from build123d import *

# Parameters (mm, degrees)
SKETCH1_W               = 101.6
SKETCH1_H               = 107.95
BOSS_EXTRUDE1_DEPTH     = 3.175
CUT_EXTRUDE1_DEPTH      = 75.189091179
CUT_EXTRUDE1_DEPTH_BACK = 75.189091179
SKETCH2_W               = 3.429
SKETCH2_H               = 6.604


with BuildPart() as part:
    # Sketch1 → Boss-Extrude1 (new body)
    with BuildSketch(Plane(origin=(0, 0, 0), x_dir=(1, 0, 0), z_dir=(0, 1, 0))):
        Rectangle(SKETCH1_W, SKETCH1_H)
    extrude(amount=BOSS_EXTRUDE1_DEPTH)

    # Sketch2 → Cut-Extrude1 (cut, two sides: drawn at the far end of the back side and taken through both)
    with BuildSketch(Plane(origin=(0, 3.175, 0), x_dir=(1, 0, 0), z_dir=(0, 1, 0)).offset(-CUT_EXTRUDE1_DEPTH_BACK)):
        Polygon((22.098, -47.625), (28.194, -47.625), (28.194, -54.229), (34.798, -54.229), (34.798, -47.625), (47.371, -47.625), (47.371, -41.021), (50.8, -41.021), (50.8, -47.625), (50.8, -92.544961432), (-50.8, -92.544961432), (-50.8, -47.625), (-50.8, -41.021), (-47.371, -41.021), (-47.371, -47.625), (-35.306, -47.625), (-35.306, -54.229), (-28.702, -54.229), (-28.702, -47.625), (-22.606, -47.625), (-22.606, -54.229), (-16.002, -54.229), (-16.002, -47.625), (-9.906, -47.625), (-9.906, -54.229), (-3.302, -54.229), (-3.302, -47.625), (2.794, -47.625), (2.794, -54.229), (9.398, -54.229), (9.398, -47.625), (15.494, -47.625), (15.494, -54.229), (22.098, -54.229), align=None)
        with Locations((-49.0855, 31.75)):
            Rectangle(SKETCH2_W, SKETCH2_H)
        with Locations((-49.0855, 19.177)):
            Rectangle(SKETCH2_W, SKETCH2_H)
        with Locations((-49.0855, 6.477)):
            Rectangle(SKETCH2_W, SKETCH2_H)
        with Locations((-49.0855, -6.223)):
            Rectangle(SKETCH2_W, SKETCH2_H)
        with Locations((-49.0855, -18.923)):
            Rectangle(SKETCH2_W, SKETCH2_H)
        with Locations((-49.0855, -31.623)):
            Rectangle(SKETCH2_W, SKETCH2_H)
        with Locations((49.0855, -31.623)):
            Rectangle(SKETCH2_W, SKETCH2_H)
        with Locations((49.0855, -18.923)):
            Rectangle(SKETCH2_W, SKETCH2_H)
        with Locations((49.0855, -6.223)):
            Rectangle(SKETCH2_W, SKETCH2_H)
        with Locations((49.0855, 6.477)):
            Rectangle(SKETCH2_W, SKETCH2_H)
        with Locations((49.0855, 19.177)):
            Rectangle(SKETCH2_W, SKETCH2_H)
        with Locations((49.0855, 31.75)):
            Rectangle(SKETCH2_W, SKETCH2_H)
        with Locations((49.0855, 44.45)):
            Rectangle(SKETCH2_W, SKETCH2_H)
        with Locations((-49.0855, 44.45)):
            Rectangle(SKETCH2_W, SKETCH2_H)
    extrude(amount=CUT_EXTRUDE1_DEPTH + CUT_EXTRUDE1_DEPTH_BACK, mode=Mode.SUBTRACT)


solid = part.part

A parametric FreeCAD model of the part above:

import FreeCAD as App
import Part
import Sketcher
from FreeCAD import Vector
Q = App.Units.Quantity

doc = App.newDocument("Part")
params = doc.addObject("Spreadsheet::Sheet", "Params")
for row, (alias, value) in enumerate([
    ("sketch1_width", "4 in"),
    ("sketch1_height", "4.25 in"),
    ("pad1_length", "0.125 in"),
    ("sketch2_width", "4 in"),
    ("sketch2_width2", "0.24 in"),
    ("sketch2_width3", "0.26 in"),
    ("sketch2_width4", "0.475 in"),
    ("sketch2_width5", "0.135 in"),
], start=1):
    params.set(f"A{row}", alias)
    params.set(f"B{row}", "=" + value)
    params.setAlias(f"B{row}", alias)

body = doc.addObject("PartDesign::Body", "Body")

sketch1 = doc.addObject("Sketcher::SketchObject", "Sketch")
body.addObject(sketch1)
sketch1.AttachmentSupport = (doc.XZ_Plane, [""])
sketch1.MapMode = "FlatFace"
sketch1.addGeometry(Part.LineSegment(Vector(-50.8, -53.975, 0), Vector(-50.8, 53.975, 0)), False)
sketch1.addGeometry(Part.LineSegment(Vector(-50.8, 53.975, 0), Vector(50.8, 53.975, 0)), False)
sketch1.addGeometry(Part.LineSegment(Vector(50.8, 53.975, 0), Vector(50.8, -53.975, 0)), False)
sketch1.addGeometry(Part.LineSegment(Vector(50.8, -53.975, 0), Vector(-50.8, -53.975, 0)), False)
sketch1.addConstraint(Sketcher.Constraint("Coincident", 0, 2, 1, 1))
sketch1.addConstraint(Sketcher.Constraint("Coincident", 1, 2, 2, 1))
sketch1.addConstraint(Sketcher.Constraint("Coincident", 2, 2, 3, 1))
sketch1.addConstraint(Sketcher.Constraint("Coincident", 3, 2, 0, 1))
sketch1.addConstraint(Sketcher.Constraint("Vertical", 0))
sketch1.addConstraint(Sketcher.Constraint("Horizontal", 1))
sketch1.addConstraint(Sketcher.Constraint("Vertical", 2))
sketch1.addConstraint(Sketcher.Constraint("Horizontal", 3))
sketch1.addConstraint(Sketcher.Constraint("Symmetric", 0, 2, 2, 2, -1, 1))
sketch1.addConstraint(Sketcher.Constraint("DistanceX", 1, 1, 1, 2, Q("4 in")))
sketch1.addConstraint(Sketcher.Constraint("DistanceY", 0, 1, 0, 2, Q("4.25 in")))
sketch1.setExpression("Constraints[9]", "Params.sketch1_width")
sketch1.setExpression("Constraints[10]", "Params.sketch1_height")
pad1 = doc.addObject("PartDesign::Pad", "Pad")
body.addObject(pad1)
pad1.Profile = sketch1
pad1.setExpression("Length", "Params.pad1_length")
pad1.Reversed = True

sketch2 = doc.addObject("Sketcher::SketchObject", "Sketch001")
body.addObject(sketch2)
sketch2.AttachmentSupport = (doc.XZ_Plane, [""])
sketch2.MapMode = "FlatFace"
sketch2.AttachmentOffset = App.Placement(Vector(0, 0, -0.125 * 25.4), App.Rotation())
sketch2.addGeometry(Part.LineSegment(Vector(28.194, 47.625, 0), Vector(22.098, 47.625, 0)), False)
sketch2.addGeometry(Part.LineSegment(Vector(22.098, 47.625, 0), Vector(22.098, 54.229, 0)), False)
sketch2.addGeometry(Part.LineSegment(Vector(22.098, 54.229, 0), Vector(15.494, 54.229, 0)), False)
sketch2.addGeometry(Part.LineSegment(Vector(15.494, 54.229, 0), Vector(15.494, 47.625, 0)), False)
sketch2.addGeometry(Part.LineSegment(Vector(15.494, 47.625, 0), Vector(9.398, 47.625, 0)), False)
sketch2.addGeometry(Part.LineSegment(Vector(9.398, 47.625, 0), Vector(9.398, 54.229, 0)), False)
sketch2.addGeometry(Part.LineSegment(Vector(9.398, 54.229, 0), Vector(2.794, 54.229, 0)), False)
sketch2.addGeometry(Part.LineSegment(Vector(2.794, 54.229, 0), Vector(2.794, 47.625, 0)), False)
sketch2.addGeometry(Part.LineSegment(Vector(2.794, 47.625, 0), Vector(-3.302, 47.625, 0)), False)
sketch2.addGeometry(Part.LineSegment(Vector(-3.302, 47.625, 0), Vector(-3.302, 54.229, 0)), False)
sketch2.addGeometry(Part.LineSegment(Vector(-3.302, 54.229, 0), Vector(-9.906, 54.229, 0)), False)
sketch2.addGeometry(Part.LineSegment(Vector(-9.906, 54.229, 0), Vector(-9.906, 47.625, 0)), False)
sketch2.addGeometry(Part.LineSegment(Vector(-9.906, 47.625, 0), Vector(-16.002, 47.625, 0)), False)
sketch2.addGeometry(Part.LineSegment(Vector(-16.002, 47.625, 0), Vector(-16.002, 54.229, 0)), False)
sketch2.addGeometry(Part.LineSegment(Vector(-16.002, 54.229, 0), Vector(-22.606, 54.229, 0)), False)
sketch2.addGeometry(Part.LineSegment(Vector(-22.606, 54.229, 0), Vector(-22.606, 47.625, 0)), False)
sketch2.addGeometry(Part.LineSegment(Vector(-22.606, 47.625, 0), Vector(-28.702, 47.625, 0)), False)
sketch2.addGeometry(Part.LineSegment(Vector(-28.702, 47.625, 0), Vector(-28.702, 54.229, 0)), False)
sketch2.addGeometry(Part.LineSegment(Vector(-28.702, 54.229, 0), Vector(-35.306, 54.229, 0)), False)
sketch2.addGeometry(Part.LineSegment(Vector(-35.306, 54.229, 0), Vector(-35.306, 47.625, 0)), False)
sketch2.addGeometry(Part.LineSegment(Vector(-35.306, 47.625, 0), Vector(-47.371, 47.625, 0)), False)
sketch2.addGeometry(Part.LineSegment(Vector(-47.371, 47.625, 0), Vector(-47.371, 41.021, 0)), False)
sketch2.addGeometry(Part.LineSegment(Vector(-47.371, 41.021, 0), Vector(-50.8, 41.021, 0)), False)
sketch2.addGeometry(Part.LineSegment(Vector(-50.8, 41.021, 0), Vector(-50.8, 92.544961, 0)), False)
sketch2.addGeometry(Part.LineSegment(Vector(-50.8, 92.544961, 0), Vector(50.8, 92.544961, 0)), False)
sketch2.addGeometry(Part.LineSegment(Vector(50.8, 92.544961, 0), Vector(50.8, 41.021, 0)), False)
sketch2.addGeometry(Part.LineSegment(Vector(50.8, 41.021, 0), Vector(47.371, 41.021, 0)), False)
sketch2.addGeometry(Part.LineSegment(Vector(47.371, 41.021, 0), Vector(47.371, 47.625, 0)), False)
sketch2.addGeometry(Part.LineSegment(Vector(47.371, 47.625, 0), Vector(34.798, 47.625, 0)), False)
sketch2.addGeometry(Part.LineSegment(Vector(34.798, 47.625, 0), Vector(34.798, 54.229, 0)), False)
sketch2.addGeometry(Part.LineSegment(Vector(34.798, 54.229, 0), Vector(28.194, 54.229, 0)), False)
sketch2.addGeometry(Part.LineSegment(Vector(28.194, 54.229, 0), Vector(28.194, 47.625, 0)), False)
sketch2.addGeometry(Part.LineSegment(Vector(-50.8, -35.052, 0), Vector(-50.8, -28.448, 0)), False)
sketch2.addGeometry(Part.LineSegment(Vector(-50.8, -28.448, 0), Vector(-47.371, -28.448, 0)), False)
sketch2.addGeometry(Part.LineSegment(Vector(-47.371, -28.448, 0), Vector(-47.371, -35.052, 0)), False)
sketch2.addGeometry(Part.LineSegment(Vector(-47.371, -35.052, 0), Vector(-50.8, -35.052, 0)), False)
sketch2.addGeometry(Part.LineSegment(Vector(-50.8, -22.479, 0), Vector(-50.8, -15.875, 0)), False)
sketch2.addGeometry(Part.LineSegment(Vector(-50.8, -15.875, 0), Vector(-47.371, -15.875, 0)), False)
sketch2.addGeometry(Part.LineSegment(Vector(-47.371, -15.875, 0), Vector(-47.371, -22.479, 0)), False)
sketch2.addGeometry(Part.LineSegment(Vector(-47.371, -22.479, 0), Vector(-50.8, -22.479, 0)), False)
sketch2.addGeometry(Part.LineSegment(Vector(-50.8, -9.779, 0), Vector(-50.8, -3.175, 0)), False)
sketch2.addGeometry(Part.LineSegment(Vector(-50.8, -3.175, 0), Vector(-47.371, -3.175, 0)), False)
sketch2.addGeometry(Part.LineSegment(Vector(-47.371, -3.175, 0), Vector(-47.371, -9.779, 0)), False)
sketch2.addGeometry(Part.LineSegment(Vector(-47.371, -9.779, 0), Vector(-50.8, -9.779, 0)), False)
sketch2.addGeometry(Part.LineSegment(Vector(-50.8, 2.921, 0), Vector(-50.8, 9.525, 0)), False)
sketch2.addGeometry(Part.LineSegment(Vector(-50.8, 9.525, 0), Vector(-47.371, 9.525, 0)), False)
sketch2.addGeometry(Part.LineSegment(Vector(-47.371, 9.525, 0), Vector(-47.371, 2.921, 0)), False)
sketch2.addGeometry(Part.LineSegment(Vector(-47.371, 2.921, 0), Vector(-50.8, 2.921, 0)), False)
sketch2.addGeometry(Part.LineSegment(Vector(-50.8, 15.621, 0), Vector(-50.8, 22.225, 0)), False)
sketch2.addGeometry(Part.LineSegment(Vector(-50.8, 22.225, 0), Vector(-47.371, 22.225, 0)), False)
sketch2.addGeometry(Part.LineSegment(Vector(-47.371, 22.225, 0), Vector(-47.371, 15.621, 0)), False)
sketch2.addGeometry(Part.LineSegment(Vector(-47.371, 15.621, 0), Vector(-50.8, 15.621, 0)), False)
sketch2.addGeometry(Part.LineSegment(Vector(-50.8, 28.321, 0), Vector(-50.8, 34.925, 0)), False)
sketch2.addGeometry(Part.LineSegment(Vector(-50.8, 34.925, 0), Vector(-47.371, 34.925, 0)), False)
sketch2.addGeometry(Part.LineSegment(Vector(-47.371, 34.925, 0), Vector(-47.371, 28.321, 0)), False)
sketch2.addGeometry(Part.LineSegment(Vector(-47.371, 28.321, 0), Vector(-50.8, 28.321, 0)), False)
sketch2.addGeometry(Part.LineSegment(Vector(47.371, 28.321, 0), Vector(47.371, 34.925, 0)), False)
sketch2.addGeometry(Part.LineSegment(Vector(47.371, 34.925, 0), Vector(50.8, 34.925, 0)), False)
sketch2.addGeometry(Part.LineSegment(Vector(50.8, 34.925, 0), Vector(50.8, 28.321, 0)), False)
sketch2.addGeometry(Part.LineSegment(Vector(50.8, 28.321, 0), Vector(47.371, 28.321, 0)), False)
sketch2.addGeometry(Part.LineSegment(Vector(47.371, 15.621, 0), Vector(47.371, 22.225, 0)), False)
sketch2.addGeometry(Part.LineSegment(Vector(47.371, 22.225, 0), Vector(50.8, 22.225, 0)), False)
sketch2.addGeometry(Part.LineSegment(Vector(50.8, 22.225, 0), Vector(50.8, 15.621, 0)), False)
sketch2.addGeometry(Part.LineSegment(Vector(50.8, 15.621, 0), Vector(47.371, 15.621, 0)), False)
sketch2.addGeometry(Part.LineSegment(Vector(47.371, 2.921, 0), Vector(47.371, 9.525, 0)), False)
sketch2.addGeometry(Part.LineSegment(Vector(47.371, 9.525, 0), Vector(50.8, 9.525, 0)), False)
sketch2.addGeometry(Part.LineSegment(Vector(50.8, 9.525, 0), Vector(50.8, 2.921, 0)), False)
sketch2.addGeometry(Part.LineSegment(Vector(50.8, 2.921, 0), Vector(47.371, 2.921, 0)), False)
sketch2.addGeometry(Part.LineSegment(Vector(47.371, -9.779, 0), Vector(47.371, -3.175, 0)), False)
sketch2.addGeometry(Part.LineSegment(Vector(47.371, -3.175, 0), Vector(50.8, -3.175, 0)), False)
sketch2.addGeometry(Part.LineSegment(Vector(50.8, -3.175, 0), Vector(50.8, -9.779, 0)), False)
sketch2.addGeometry(Part.LineSegment(Vector(50.8, -9.779, 0), Vector(47.371, -9.779, 0)), False)
sketch2.addGeometry(Part.LineSegment(Vector(47.371, -22.479, 0), Vector(47.371, -15.875, 0)), False)
sketch2.addGeometry(Part.LineSegment(Vector(47.371, -15.875, 0), Vector(50.8, -15.875, 0)), False)
sketch2.addGeometry(Part.LineSegment(Vector(50.8, -15.875, 0), Vector(50.8, -22.479, 0)), False)
sketch2.addGeometry(Part.LineSegment(Vector(50.8, -22.479, 0), Vector(47.371, -22.479, 0)), False)
sketch2.addGeometry(Part.LineSegment(Vector(47.371, -35.052, 0), Vector(47.371, -28.448, 0)), False)
sketch2.addGeometry(Part.LineSegment(Vector(47.371, -28.448, 0), Vector(50.8, -28.448, 0)), False)
sketch2.addGeometry(Part.LineSegment(Vector(50.8, -28.448, 0), Vector(50.8, -35.052, 0)), False)
sketch2.addGeometry(Part.LineSegment(Vector(50.8, -35.052, 0), Vector(47.371, -35.052, 0)), False)
sketch2.addGeometry(Part.LineSegment(Vector(47.371, -47.752, 0), Vector(47.371, -41.148, 0)), False)
sketch2.addGeometry(Part.LineSegment(Vector(47.371, -41.148, 0), Vector(50.8, -41.148, 0)), False)
sketch2.addGeometry(Part.LineSegment(Vector(50.8, -41.148, 0), Vector(50.8, -47.752, 0)), False)
sketch2.addGeometry(Part.LineSegment(Vector(50.8, -47.752, 0), Vector(47.371, -47.752, 0)), False)
sketch2.addGeometry(Part.LineSegment(Vector(-50.8, -47.752, 0), Vector(-50.8, -41.148, 0)), False)
sketch2.addGeometry(Part.LineSegment(Vector(-50.8, -41.148, 0), Vector(-47.371, -41.148, 0)), False)
sketch2.addGeometry(Part.LineSegment(Vector(-47.371, -41.148, 0), Vector(-47.371, -47.752, 0)), False)
sketch2.addGeometry(Part.LineSegment(Vector(-47.371, -47.752, 0), Vector(-50.8, -47.752, 0)), False)
sketch2.addConstraint(Sketcher.Constraint("Coincident", 0, 2, 1, 1))
sketch2.addConstraint(Sketcher.Constraint("Coincident", 1, 2, 2, 1))
sketch2.addConstraint(Sketcher.Constraint("Coincident", 2, 2, 3, 1))
sketch2.addConstraint(Sketcher.Constraint("Coincident", 3, 2, 4, 1))
sketch2.addConstraint(Sketcher.Constraint("Coincident", 4, 2, 5, 1))
sketch2.addConstraint(Sketcher.Constraint("Coincident", 5, 2, 6, 1))
sketch2.addConstraint(Sketcher.Constraint("Coincident", 6, 2, 7, 1))
sketch2.addConstraint(Sketcher.Constraint("Coincident", 7, 2, 8, 1))
sketch2.addConstraint(Sketcher.Constraint("Coincident", 8, 2, 9, 1))
sketch2.addConstraint(Sketcher.Constraint("Coincident", 9, 2, 10, 1))
sketch2.addConstraint(Sketcher.Constraint("Coincident", 10, 2, 11, 1))
sketch2.addConstraint(Sketcher.Constraint("Coincident", 11, 2, 12, 1))
sketch2.addConstraint(Sketcher.Constraint("Coincident", 12, 2, 13, 1))
sketch2.addConstraint(Sketcher.Constraint("Coincident", 13, 2, 14, 1))
sketch2.addConstraint(Sketcher.Constraint("Coincident", 14, 2, 15, 1))
sketch2.addConstraint(Sketcher.Constraint("Coincident", 15, 2, 16, 1))
sketch2.addConstraint(Sketcher.Constraint("Coincident", 16, 2, 17, 1))
sketch2.addConstraint(Sketcher.Constraint("Coincident", 17, 2, 18, 1))
sketch2.addConstraint(Sketcher.Constraint("Coincident", 18, 2, 19, 1))
sketch2.addConstraint(Sketcher.Constraint("Coincident", 19, 2, 20, 1))
sketch2.addConstraint(Sketcher.Constraint("Coincident", 20, 2, 21, 1))
sketch2.addConstraint(Sketcher.Constraint("Coincident", 21, 2, 22, 1))
sketch2.addConstraint(Sketcher.Constraint("Coincident", 22, 2, 23, 1))
sketch2.addConstraint(Sketcher.Constraint("Coincident", 23, 2, 24, 1))
sketch2.addConstraint(Sketcher.Constraint("Coincident", 24, 2, 25, 1))
sketch2.addConstraint(Sketcher.Constraint("Coincident", 25, 2, 26, 1))
sketch2.addConstraint(Sketcher.Constraint("Coincident", 26, 2, 27, 1))
sketch2.addConstraint(Sketcher.Constraint("Coincident", 27, 2, 28, 1))
sketch2.addConstraint(Sketcher.Constraint("Coincident", 28, 2, 29, 1))
sketch2.addConstraint(Sketcher.Constraint("Coincident", 29, 2, 30, 1))
sketch2.addConstraint(Sketcher.Constraint("Coincident", 30, 2, 31, 1))
sketch2.addConstraint(Sketcher.Constraint("Coincident", 31, 2, 0, 1))
sketch2.addConstraint(Sketcher.Constraint("Coincident", 32, 2, 33, 1))
sketch2.addConstraint(Sketcher.Constraint("Coincident", 33, 2, 34, 1))
sketch2.addConstraint(Sketcher.Constraint("Coincident", 34, 2, 35, 1))
sketch2.addConstraint(Sketcher.Constraint("Coincident", 35, 2, 32, 1))
sketch2.addConstraint(Sketcher.Constraint("Coincident", 36, 2, 37, 1))
sketch2.addConstraint(Sketcher.Constraint("Coincident", 37, 2, 38, 1))
sketch2.addConstraint(Sketcher.Constraint("Coincident", 38, 2, 39, 1))
sketch2.addConstraint(Sketcher.Constraint("Coincident", 39, 2, 36, 1))
sketch2.addConstraint(Sketcher.Constraint("Coincident", 40, 2, 41, 1))
sketch2.addConstraint(Sketcher.Constraint("Coincident", 41, 2, 42, 1))
sketch2.addConstraint(Sketcher.Constraint("Coincident", 42, 2, 43, 1))
sketch2.addConstraint(Sketcher.Constraint("Coincident", 43, 2, 40, 1))
sketch2.addConstraint(Sketcher.Constraint("Coincident", 44, 2, 45, 1))
sketch2.addConstraint(Sketcher.Constraint("Coincident", 45, 2, 46, 1))
sketch2.addConstraint(Sketcher.Constraint("Coincident", 46, 2, 47, 1))
sketch2.addConstraint(Sketcher.Constraint("Coincident", 47, 2, 44, 1))
sketch2.addConstraint(Sketcher.Constraint("Coincident", 48, 2, 49, 1))
sketch2.addConstraint(Sketcher.Constraint("Coincident", 49, 2, 50, 1))
sketch2.addConstraint(Sketcher.Constraint("Coincident", 50, 2, 51, 1))
sketch2.addConstraint(Sketcher.Constraint("Coincident", 51, 2, 48, 1))
sketch2.addConstraint(Sketcher.Constraint("Coincident", 52, 2, 53, 1))
sketch2.addConstraint(Sketcher.Constraint("Coincident", 53, 2, 54, 1))
sketch2.addConstraint(Sketcher.Constraint("Coincident", 54, 2, 55, 1))
sketch2.addConstraint(Sketcher.Constraint("Coincident", 55, 2, 52, 1))
sketch2.addConstraint(Sketcher.Constraint("Coincident", 56, 2, 57, 1))
sketch2.addConstraint(Sketcher.Constraint("Coincident", 57, 2, 58, 1))
sketch2.addConstraint(Sketcher.Constraint("Coincident", 58, 2, 59, 1))
sketch2.addConstraint(Sketcher.Constraint("Coincident", 59, 2, 56, 1))
sketch2.addConstraint(Sketcher.Constraint("Coincident", 60, 2, 61, 1))
sketch2.addConstraint(Sketcher.Constraint("Coincident", 61, 2, 62, 1))
sketch2.addConstraint(Sketcher.Constraint("Coincident", 62, 2, 63, 1))
sketch2.addConstraint(Sketcher.Constraint("Coincident", 63, 2, 60, 1))
sketch2.addConstraint(Sketcher.Constraint("Coincident", 64, 2, 65, 1))
sketch2.addConstraint(Sketcher.Constraint("Coincident", 65, 2, 66, 1))
sketch2.addConstraint(Sketcher.Constraint("Coincident", 66, 2, 67, 1))
sketch2.addConstraint(Sketcher.Constraint("Coincident", 67, 2, 64, 1))
sketch2.addConstraint(Sketcher.Constraint("Coincident", 68, 2, 69, 1))
sketch2.addConstraint(Sketcher.Constraint("Coincident", 69, 2, 70, 1))
sketch2.addConstraint(Sketcher.Constraint("Coincident", 70, 2, 71, 1))
sketch2.addConstraint(Sketcher.Constraint("Coincident", 71, 2, 68, 1))
sketch2.addConstraint(Sketcher.Constraint("Coincident", 72, 2, 73, 1))
sketch2.addConstraint(Sketcher.Constraint("Coincident", 73, 2, 74, 1))
sketch2.addConstraint(Sketcher.Constraint("Coincident", 74, 2, 75, 1))
sketch2.addConstraint(Sketcher.Constraint("Coincident", 75, 2, 72, 1))
sketch2.addConstraint(Sketcher.Constraint("Coincident", 76, 2, 77, 1))
sketch2.addConstraint(Sketcher.Constraint("Coincident", 77, 2, 78, 1))
sketch2.addConstraint(Sketcher.Constraint("Coincident", 78, 2, 79, 1))
sketch2.addConstraint(Sketcher.Constraint("Coincident", 79, 2, 76, 1))
sketch2.addConstraint(Sketcher.Constraint("Coincident", 80, 2, 81, 1))
sketch2.addConstraint(Sketcher.Constraint("Coincident", 81, 2, 82, 1))
sketch2.addConstraint(Sketcher.Constraint("Coincident", 82, 2, 83, 1))
sketch2.addConstraint(Sketcher.Constraint("Coincident", 83, 2, 80, 1))
sketch2.addConstraint(Sketcher.Constraint("Coincident", 84, 2, 85, 1))
sketch2.addConstraint(Sketcher.Constraint("Coincident", 85, 2, 86, 1))
sketch2.addConstraint(Sketcher.Constraint("Coincident", 86, 2, 87, 1))
sketch2.addConstraint(Sketcher.Constraint("Coincident", 87, 2, 84, 1))
sketch2.addConstraint(Sketcher.Constraint("Horizontal", 0))
sketch2.addConstraint(Sketcher.Constraint("Vertical", 1))
sketch2.addConstraint(Sketcher.Constraint("Horizontal", 2))
sketch2.addConstraint(Sketcher.Constraint("Vertical", 3))
sketch2.addConstraint(Sketcher.Constraint("Horizontal", 4))
sketch2.addConstraint(Sketcher.Constraint("Vertical", 5))
sketch2.addConstraint(Sketcher.Constraint("Horizontal", 6))
sketch2.addConstraint(Sketcher.Constraint("Vertical", 7))
sketch2.addConstraint(Sketcher.Constraint("Horizontal", 8))
sketch2.addConstraint(Sketcher.Constraint("Vertical", 9))
sketch2.addConstraint(Sketcher.Constraint("Horizontal", 10))
sketch2.addConstraint(Sketcher.Constraint("Vertical", 11))
sketch2.addConstraint(Sketcher.Constraint("Horizontal", 12))
sketch2.addConstraint(Sketcher.Constraint("Vertical", 13))
sketch2.addConstraint(Sketcher.Constraint("Horizontal", 14))
sketch2.addConstraint(Sketcher.Constraint("Vertical", 15))
sketch2.addConstraint(Sketcher.Constraint("Horizontal", 16))
sketch2.addConstraint(Sketcher.Constraint("Vertical", 17))
sketch2.addConstraint(Sketcher.Constraint("Horizontal", 18))
sketch2.addConstraint(Sketcher.Constraint("Vertical", 19))
sketch2.addConstraint(Sketcher.Constraint("Horizontal", 20))
sketch2.addConstraint(Sketcher.Constraint("Vertical", 21))
sketch2.addConstraint(Sketcher.Constraint("Horizontal", 22))
sketch2.addConstraint(Sketcher.Constraint("Vertical", 23))
sketch2.addConstraint(Sketcher.Constraint("Horizontal", 24))
sketch2.addConstraint(Sketcher.Constraint("Vertical", 25))
sketch2.addConstraint(Sketcher.Constraint("Horizontal", 26))
sketch2.addConstraint(Sketcher.Constraint("Vertical", 27))
sketch2.addConstraint(Sketcher.Constraint("Horizontal", 28))
sketch2.addConstraint(Sketcher.Constraint("Vertical", 29))
sketch2.addConstraint(Sketcher.Constraint("Horizontal", 30))
sketch2.addConstraint(Sketcher.Constraint("Vertical", 31))
sketch2.addConstraint(Sketcher.Constraint("Vertical", 32))
sketch2.addConstraint(Sketcher.Constraint("Horizontal", 33))
sketch2.addConstraint(Sketcher.Constraint("Vertical", 34))
sketch2.addConstraint(Sketcher.Constraint("Horizontal", 35))
sketch2.addConstraint(Sketcher.Constraint("Vertical", 36))
sketch2.addConstraint(Sketcher.Constraint("Horizontal", 37))
sketch2.addConstraint(Sketcher.Constraint("Vertical", 38))
sketch2.addConstraint(Sketcher.Constraint("Horizontal", 39))
sketch2.addConstraint(Sketcher.Constraint("Vertical", 40))
sketch2.addConstraint(Sketcher.Constraint("Horizontal", 41))
sketch2.addConstraint(Sketcher.Constraint("Vertical", 42))
sketch2.addConstraint(Sketcher.Constraint("Horizontal", 43))
sketch2.addConstraint(Sketcher.Constraint("Vertical", 44))
sketch2.addConstraint(Sketcher.Constraint("Horizontal", 45))
sketch2.addConstraint(Sketcher.Constraint("Vertical", 46))
sketch2.addConstraint(Sketcher.Constraint("Horizontal", 47))
sketch2.addConstraint(Sketcher.Constraint("Vertical", 48))
sketch2.addConstraint(Sketcher.Constraint("Horizontal", 49))
sketch2.addConstraint(Sketcher.Constraint("Vertical", 50))
sketch2.addConstraint(Sketcher.Constraint("Horizontal", 51))
sketch2.addConstraint(Sketcher.Constraint("Vertical", 52))
sketch2.addConstraint(Sketcher.Constraint("Horizontal", 53))
sketch2.addConstraint(Sketcher.Constraint("Vertical", 54))
sketch2.addConstraint(Sketcher.Constraint("Horizontal", 55))
sketch2.addConstraint(Sketcher.Constraint("Vertical", 56))
sketch2.addConstraint(Sketcher.Constraint("Horizontal", 57))
sketch2.addConstraint(Sketcher.Constraint("Vertical", 58))
sketch2.addConstraint(Sketcher.Constraint("Horizontal", 59))
sketch2.addConstraint(Sketcher.Constraint("Vertical", 60))
sketch2.addConstraint(Sketcher.Constraint("Horizontal", 61))
sketch2.addConstraint(Sketcher.Constraint("Vertical", 62))
sketch2.addConstraint(Sketcher.Constraint("Horizontal", 63))
sketch2.addConstraint(Sketcher.Constraint("Vertical", 64))
sketch2.addConstraint(Sketcher.Constraint("Horizontal", 65))
sketch2.addConstraint(Sketcher.Constraint("Vertical", 66))
sketch2.addConstraint(Sketcher.Constraint("Horizontal", 67))
sketch2.addConstraint(Sketcher.Constraint("Vertical", 68))
sketch2.addConstraint(Sketcher.Constraint("Horizontal", 69))
sketch2.addConstraint(Sketcher.Constraint("Vertical", 70))
sketch2.addConstraint(Sketcher.Constraint("Horizontal", 71))
sketch2.addConstraint(Sketcher.Constraint("Vertical", 72))
sketch2.addConstraint(Sketcher.Constraint("Horizontal", 73))
sketch2.addConstraint(Sketcher.Constraint("Vertical", 74))
sketch2.addConstraint(Sketcher.Constraint("Horizontal", 75))
sketch2.addConstraint(Sketcher.Constraint("Vertical", 76))
sketch2.addConstraint(Sketcher.Constraint("Horizontal", 77))
sketch2.addConstraint(Sketcher.Constraint("Vertical", 78))
sketch2.addConstraint(Sketcher.Constraint("Horizontal", 79))
sketch2.addConstraint(Sketcher.Constraint("Vertical", 80))
sketch2.addConstraint(Sketcher.Constraint("Horizontal", 81))
sketch2.addConstraint(Sketcher.Constraint("Vertical", 82))
sketch2.addConstraint(Sketcher.Constraint("Horizontal", 83))
sketch2.addConstraint(Sketcher.Constraint("Vertical", 84))
sketch2.addConstraint(Sketcher.Constraint("Horizontal", 85))
sketch2.addConstraint(Sketcher.Constraint("Vertical", 86))
sketch2.addConstraint(Sketcher.Constraint("Horizontal", 87))
sketch2.addConstraint(Sketcher.Constraint("Symmetric", 22, 2, 25, 2, -2))
sketch2.addConstraint(Sketcher.Constraint("Symmetric", 20, 2, 27, 2, -2))
sketch2.addConstraint(Sketcher.Constraint("Symmetric", 53, 2, 56, 2, -2))
sketch2.addConstraint(Sketcher.Constraint("Symmetric", 55, 2, 58, 2, -2))
sketch2.addConstraint(Sketcher.Constraint("Symmetric", 49, 2, 60, 2, -2))
sketch2.addConstraint(Sketcher.Constraint("Symmetric", 51, 2, 62, 2, -2))
sketch2.addConstraint(Sketcher.Constraint("Symmetric", 45, 2, 64, 2, -2))
sketch2.addConstraint(Sketcher.Constraint("Symmetric", 47, 2, 66, 2, -2))
sketch2.addConstraint(Sketcher.Constraint("Symmetric", 41, 2, 68, 2, -2))
sketch2.addConstraint(Sketcher.Constraint("Symmetric", 43, 2, 70, 2, -2))
sketch2.addConstraint(Sketcher.Constraint("Symmetric", 37, 2, 72, 2, -2))
sketch2.addConstraint(Sketcher.Constraint("Symmetric", 39, 2, 74, 2, -2))
sketch2.addConstraint(Sketcher.Constraint("Symmetric", 33, 2, 76, 2, -2))
sketch2.addConstraint(Sketcher.Constraint("Symmetric", 35, 2, 78, 2, -2))
sketch2.addConstraint(Sketcher.Constraint("Symmetric", 81, 2, 84, 2, -2))
sketch2.addConstraint(Sketcher.Constraint("Symmetric", 83, 2, 86, 2, -2))
sketch2.addConstraint(Sketcher.Constraint("Horizontal", 0, 2, 3, 2))
sketch2.addConstraint(Sketcher.Constraint("Horizontal", 2, 2, 5, 2))
sketch2.addConstraint(Sketcher.Constraint("Horizontal", 4, 2, 7, 2))
sketch2.addConstraint(Sketcher.Constraint("Horizontal", 6, 2, 9, 2))
sketch2.addConstraint(Sketcher.Constraint("Horizontal", 8, 2, 11, 2))
sketch2.addConstraint(Sketcher.Constraint("Horizontal", 10, 2, 13, 2))
sketch2.addConstraint(Sketcher.Constraint("Horizontal", 12, 2, 15, 2))
sketch2.addConstraint(Sketcher.Constraint("Horizontal", 14, 2, 17, 2))
sketch2.addConstraint(Sketcher.Constraint("Horizontal", 16, 2, 19, 2))
sketch2.addConstraint(Sketcher.Constraint("Horizontal", 18, 2, 29, 2))
sketch2.addConstraint(Sketcher.Constraint("Vertical", 23, 2, 32, 2))
sketch2.addConstraint(Sketcher.Constraint("Vertical", 21, 2, 33, 2))
sketch2.addConstraint(Sketcher.Constraint("Vertical", 35, 2, 36, 2))
sketch2.addConstraint(Sketcher.Constraint("Vertical", 34, 2, 37, 2))
sketch2.addConstraint(Sketcher.Constraint("Vertical", 39, 2, 40, 2))
sketch2.addConstraint(Sketcher.Constraint("Vertical", 38, 2, 41, 2))
sketch2.addConstraint(Sketcher.Constraint("Vertical", 43, 2, 44, 2))
sketch2.addConstraint(Sketcher.Constraint("Vertical", 42, 2, 45, 2))
sketch2.addConstraint(Sketcher.Constraint("Vertical", 47, 2, 48, 2))
sketch2.addConstraint(Sketcher.Constraint("Vertical", 46, 2, 49, 2))
sketch2.addConstraint(Sketcher.Constraint("Vertical", 51, 2, 52, 2))
sketch2.addConstraint(Sketcher.Constraint("Vertical", 50, 2, 53, 2))
sketch2.addConstraint(Sketcher.Constraint("Vertical", 79, 2, 80, 2))
sketch2.addConstraint(Sketcher.Constraint("Vertical", 78, 2, 81, 2))
sketch2.addConstraint(Sketcher.Constraint("Equal", 0, 4))
sketch2.addConstraint(Sketcher.Constraint("Equal", 2, 6))
sketch2.addConstraint(Sketcher.Constraint("Equal", 4, 8))
sketch2.addConstraint(Sketcher.Constraint("Equal", 6, 10))
sketch2.addConstraint(Sketcher.Constraint("Equal", 8, 12))
sketch2.addConstraint(Sketcher.Constraint("Equal", 10, 14))
sketch2.addConstraint(Sketcher.Constraint("Equal", 12, 16))
sketch2.addConstraint(Sketcher.Constraint("Equal", 14, 18))
sketch2.addConstraint(Sketcher.Constraint("Equal", 18, 30))
sketch2.addConstraint(Sketcher.Constraint("Equal", 30, 1))
sketch2.addConstraint(Sketcher.Constraint("Equal", 19, 21))
sketch2.addConstraint(Sketcher.Constraint("Equal", 31, 32))
sketch2.addConstraint(Sketcher.Constraint("Equal", 34, 36))
sketch2.addConstraint(Sketcher.Constraint("Equal", 38, 40))
sketch2.addConstraint(Sketcher.Constraint("Equal", 42, 44))
sketch2.addConstraint(Sketcher.Constraint("Equal", 46, 48))
sketch2.addConstraint(Sketcher.Constraint("Equal", 50, 52))
sketch2.addConstraint(Sketcher.Constraint("Equal", 78, 80))
sketch2.addConstraint(Sketcher.Constraint("DistanceX", 24, 1, 24, 2, Q("4 in")))
sketch2.addConstraint(Sketcher.Constraint("DistanceX", 0, 2, 0, 1, Q("0.24 in")))
sketch2.addConstraint(Sketcher.Constraint("DistanceX", 2, 2, 2, 1, Q("0.26 in")))
sketch2.addConstraint(Sketcher.Constraint("DistanceX", 20, 2, 20, 1, Q("0.475 in")))
sketch2.addConstraint(Sketcher.Constraint("DistanceX", 22, 2, 22, 1, Q("0.135 in")))
sketch2.addConstraint(Sketcher.Constraint("DistanceY", 32, 2, -1, 1, Q("1.12 in")))
sketch2.addConstraint(Sketcher.Constraint("DistanceY", 80, 2, -1, 1, Q("1.62 in")))
sketch2.addConstraint(Sketcher.Constraint("DistanceY", -1, 1, 0, 2, Q("1.875 in")))
sketch2.addConstraint(Sketcher.Constraint("DistanceY", 36, 2, -1, 1, Q("0.625 in")))
sketch2.addConstraint(Sketcher.Constraint("DistanceY", 40, 2, -1, 1, Q("0.125 in")))
sketch2.addConstraint(Sketcher.Constraint("DistanceY", -1, 1, 44, 2, Q("0.375 in")))
sketch2.addConstraint(Sketcher.Constraint("DistanceY", -1, 1, 48, 2, Q("0.875 in")))
sketch2.addConstraint(Sketcher.Constraint("DistanceY", -1, 1, 52, 2, Q("1.375 in")))
sketch2.addConstraint(Sketcher.Constraint("DistanceY", 23, 1, 23, 2, 51.523961))
sketch2.setExpression("Constraints[234]", "Params.sketch2_width")
sketch2.setExpression("Constraints[235]", "Params.sketch2_width2")
sketch2.setExpression("Constraints[236]", "Params.sketch2_width3")
sketch2.setExpression("Constraints[237]", "Params.sketch2_width4")
sketch2.setExpression("Constraints[238]", "Params.sketch2_width5")
pocket1 = doc.addObject("PartDesign::Pocket", "Pocket")
body.addObject(pocket1)
pocket1.Profile = sketch2
pocket1.Type = "ThroughAll"
pocket1.Midplane = True

doc.recompute()
